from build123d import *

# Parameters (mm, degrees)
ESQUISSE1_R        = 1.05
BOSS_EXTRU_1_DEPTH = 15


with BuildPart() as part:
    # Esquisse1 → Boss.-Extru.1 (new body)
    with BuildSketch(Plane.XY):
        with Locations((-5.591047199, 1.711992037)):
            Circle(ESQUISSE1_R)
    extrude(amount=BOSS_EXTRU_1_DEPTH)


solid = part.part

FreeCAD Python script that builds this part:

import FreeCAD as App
import Part
import Sketcher

doc = App.newDocument("Part")
params = doc.addObject("Spreadsheet::Sheet", "Params")
for row, (alias, value) in enumerate([
    ("sketch1_diameter", "2.1 mm"),
    ("pad1_length", "15 mm"),
], start=1):
    params.set(f"A{row}", alias)
    params.set(f"B{row}", "=" + value)
    params.setAlias(f"B{row}", alias)

body = doc.addObject("PartDesign::Body", "Body")

# Sketch on XY plane
sketch1 = body.newObject("Sketcher::SketchObject", "Sketch")
sketch1.AttachmentSupport = (doc.getObject("XY_Plane"), [""])
sketch1.MapMode = "FlatFace"
sketch1.addGeometry(Part.Circle(App.Vector(-5.6, 1.7, 0), App.Vector(0, 0, 1), 1.1), False)
sketch1.addConstraint([
    Sketcher.Constraint("Diameter", 0, 2.1),
    Sketcher.Constraint("DistanceX", 0, 3, -1, 1, 5.591047),
    Sketcher.Constraint("DistanceY", -1, 1, 0, 3, 1.711992),
])
sketch1.setExpression("Constraints[0]", "Params.sketch1_diameter")
pad1 = body.newObject("PartDesign::Pad", "Pad")
pad1.Profile = sketch1
pad1.setExpression("Length", "Params.pad1_length")

doc.recompute()
